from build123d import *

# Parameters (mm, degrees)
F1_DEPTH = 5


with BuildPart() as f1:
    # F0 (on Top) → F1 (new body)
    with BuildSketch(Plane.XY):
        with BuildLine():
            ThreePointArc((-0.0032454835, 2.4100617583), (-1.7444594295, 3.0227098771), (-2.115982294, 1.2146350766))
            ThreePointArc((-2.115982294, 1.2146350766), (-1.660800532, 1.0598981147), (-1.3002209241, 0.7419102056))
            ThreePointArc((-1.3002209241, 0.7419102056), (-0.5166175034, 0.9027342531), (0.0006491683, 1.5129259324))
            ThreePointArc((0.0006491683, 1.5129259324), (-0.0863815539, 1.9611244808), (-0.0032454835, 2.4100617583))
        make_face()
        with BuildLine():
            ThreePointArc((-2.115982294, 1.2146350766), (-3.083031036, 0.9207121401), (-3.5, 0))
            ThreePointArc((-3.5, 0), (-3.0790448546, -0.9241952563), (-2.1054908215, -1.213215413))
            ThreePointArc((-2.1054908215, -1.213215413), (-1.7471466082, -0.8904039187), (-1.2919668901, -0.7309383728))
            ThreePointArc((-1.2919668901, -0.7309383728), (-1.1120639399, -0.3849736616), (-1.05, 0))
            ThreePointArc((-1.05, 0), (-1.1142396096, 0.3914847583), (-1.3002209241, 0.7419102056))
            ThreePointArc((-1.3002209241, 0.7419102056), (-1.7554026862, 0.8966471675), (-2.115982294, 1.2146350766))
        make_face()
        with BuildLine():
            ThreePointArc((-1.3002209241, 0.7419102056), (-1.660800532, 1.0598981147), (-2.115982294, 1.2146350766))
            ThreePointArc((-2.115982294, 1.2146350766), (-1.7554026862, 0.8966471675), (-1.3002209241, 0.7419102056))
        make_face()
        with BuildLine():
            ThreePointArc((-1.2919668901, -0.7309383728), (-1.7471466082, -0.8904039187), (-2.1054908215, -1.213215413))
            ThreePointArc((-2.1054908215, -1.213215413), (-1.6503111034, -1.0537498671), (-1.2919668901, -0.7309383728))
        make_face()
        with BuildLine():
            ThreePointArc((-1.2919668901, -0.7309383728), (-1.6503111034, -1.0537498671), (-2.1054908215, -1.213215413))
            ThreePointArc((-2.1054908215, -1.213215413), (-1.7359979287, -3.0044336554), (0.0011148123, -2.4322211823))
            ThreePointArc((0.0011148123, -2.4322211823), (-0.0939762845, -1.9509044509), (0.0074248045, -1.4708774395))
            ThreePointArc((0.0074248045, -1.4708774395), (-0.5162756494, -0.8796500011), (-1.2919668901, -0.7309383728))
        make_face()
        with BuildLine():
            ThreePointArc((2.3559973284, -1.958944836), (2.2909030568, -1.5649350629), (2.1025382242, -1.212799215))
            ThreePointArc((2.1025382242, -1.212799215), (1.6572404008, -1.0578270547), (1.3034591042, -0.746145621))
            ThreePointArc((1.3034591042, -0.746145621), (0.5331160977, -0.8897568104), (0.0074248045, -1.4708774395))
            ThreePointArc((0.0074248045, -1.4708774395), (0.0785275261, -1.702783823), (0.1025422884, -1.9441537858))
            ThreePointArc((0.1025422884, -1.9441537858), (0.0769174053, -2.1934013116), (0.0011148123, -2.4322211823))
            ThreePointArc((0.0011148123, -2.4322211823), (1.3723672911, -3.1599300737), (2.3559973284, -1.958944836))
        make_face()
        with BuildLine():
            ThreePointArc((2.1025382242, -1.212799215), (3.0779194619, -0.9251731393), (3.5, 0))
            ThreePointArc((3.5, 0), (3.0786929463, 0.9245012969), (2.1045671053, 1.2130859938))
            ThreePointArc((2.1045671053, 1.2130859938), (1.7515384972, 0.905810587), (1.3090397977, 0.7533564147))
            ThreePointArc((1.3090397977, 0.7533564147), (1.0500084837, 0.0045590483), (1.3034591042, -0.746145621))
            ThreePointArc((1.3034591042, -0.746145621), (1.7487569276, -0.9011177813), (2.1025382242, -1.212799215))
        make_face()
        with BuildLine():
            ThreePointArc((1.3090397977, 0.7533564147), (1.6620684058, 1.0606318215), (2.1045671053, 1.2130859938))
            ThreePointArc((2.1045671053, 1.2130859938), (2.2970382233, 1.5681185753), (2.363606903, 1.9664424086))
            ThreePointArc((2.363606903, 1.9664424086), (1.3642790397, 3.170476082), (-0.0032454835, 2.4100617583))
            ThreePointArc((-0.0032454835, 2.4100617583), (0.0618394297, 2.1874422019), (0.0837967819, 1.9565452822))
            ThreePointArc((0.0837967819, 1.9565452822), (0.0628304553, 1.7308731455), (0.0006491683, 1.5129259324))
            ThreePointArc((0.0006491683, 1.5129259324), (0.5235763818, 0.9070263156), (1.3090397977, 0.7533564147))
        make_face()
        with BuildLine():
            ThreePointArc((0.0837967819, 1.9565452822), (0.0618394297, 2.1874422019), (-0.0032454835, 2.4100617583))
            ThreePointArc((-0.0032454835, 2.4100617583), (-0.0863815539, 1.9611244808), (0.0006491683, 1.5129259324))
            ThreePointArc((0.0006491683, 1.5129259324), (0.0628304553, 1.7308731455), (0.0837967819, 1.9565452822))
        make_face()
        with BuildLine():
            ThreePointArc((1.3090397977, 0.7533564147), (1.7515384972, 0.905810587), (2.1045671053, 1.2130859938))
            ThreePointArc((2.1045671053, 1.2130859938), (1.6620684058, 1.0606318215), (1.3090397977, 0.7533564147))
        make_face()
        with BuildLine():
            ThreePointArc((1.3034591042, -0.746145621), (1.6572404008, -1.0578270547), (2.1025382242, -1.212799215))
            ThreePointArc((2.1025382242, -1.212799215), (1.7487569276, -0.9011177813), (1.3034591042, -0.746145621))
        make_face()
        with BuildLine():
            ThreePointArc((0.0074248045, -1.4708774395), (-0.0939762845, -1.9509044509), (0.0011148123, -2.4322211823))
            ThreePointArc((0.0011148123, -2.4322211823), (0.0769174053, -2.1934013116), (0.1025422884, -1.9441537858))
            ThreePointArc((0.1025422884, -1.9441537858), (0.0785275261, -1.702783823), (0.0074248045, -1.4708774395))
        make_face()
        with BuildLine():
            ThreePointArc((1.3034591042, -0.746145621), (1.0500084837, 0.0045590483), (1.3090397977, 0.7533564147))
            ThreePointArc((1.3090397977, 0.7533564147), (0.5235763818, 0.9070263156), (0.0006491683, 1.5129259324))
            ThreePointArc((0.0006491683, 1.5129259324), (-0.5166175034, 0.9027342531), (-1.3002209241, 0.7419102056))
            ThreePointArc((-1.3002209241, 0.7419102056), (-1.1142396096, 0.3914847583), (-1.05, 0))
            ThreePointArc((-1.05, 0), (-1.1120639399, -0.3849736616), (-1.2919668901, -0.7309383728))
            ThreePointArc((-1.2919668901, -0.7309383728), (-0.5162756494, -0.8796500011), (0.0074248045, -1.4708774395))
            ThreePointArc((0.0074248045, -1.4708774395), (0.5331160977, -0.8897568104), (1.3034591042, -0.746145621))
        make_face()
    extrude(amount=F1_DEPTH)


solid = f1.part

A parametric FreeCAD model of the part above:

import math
import FreeCAD as App
import Part
import Sketcher
from FreeCAD import Vector
Q = App.Units.Quantity

doc = App.newDocument("Part")
params = doc.addObject("Spreadsheet::Sheet", "Params")
for row, (alias, value) in enumerate([
    ("pad1_length", "5 mm"),
], start=1):
    params.set(f"A{row}", alias)
    params.set(f"B{row}", "=" + value)
    params.setAlias(f"B{row}", alias)

body = doc.addObject("PartDesign::Body", "Body")

sketch1 = doc.addObject("Sketcher::SketchObject", "Sketch")
body.addObject(sketch1)
sketch1.AttachmentSupport = (doc.XY_Plane, [""])
sketch1.MapMode = "FlatFace"
sketch1.addGeometry(Part.ArcOfCircle(Part.Circle(Vector(-1.1, -1.9, 0), Vector(0, 0, 1), 1.2), math.radians(143), math.radians(337)), False)
sketch1.addGeometry(Part.ArcOfCircle(Part.Circle(Vector(1.1, -2, 0), Vector(0, 0, 1), 1.2), math.radians(-157), math.radians(0)), False)
sketch1.addGeometry(Part.ArcOfCircle(Part.Circle(Vector(1.1, -2, 0), Vector(0, 0, 1), 1.2), math.radians(0), math.radians(38)), False)
sketch1.addGeometry(Part.ArcOfCircle(Part.Circle(Vector(2.3, 0, 0), Vector(0, 0, 1), 1.2), math.radians(-98), math.radians(0)), False)
sketch1.addGeometry(Part.ArcOfCircle(Part.Circle(Vector(2.3, 0, 0), Vector(0, 0, 1), 1.2), math.radians(0), math.radians(98)), False)
sketch1.addGeometry(Part.ArcOfCircle(Part.Circle(Vector(1.1, 2, 0), Vector(0, 0, 1), 1.2), math.radians(-38), math.radians(0)), False)
sketch1.addGeometry(Part.ArcOfCircle(Part.Circle(Vector(1.1, 2, 0), Vector(0, 0, 1), 1.2), math.radians(0), math.radians(159)), False)
sketch1.addGeometry(Part.ArcOfCircle(Part.Circle(Vector(-1.1, 2, 0), Vector(0, 0, 1), 1.2), math.radians(22), math.radians(217)), False)
sketch1.addGeometry(Part.ArcOfCircle(Part.Circle(Vector(-2.3, 0, 0), Vector(0, 0, 1), 1.2), math.radians(83), math.radians(180)), False)
sketch1.addGeometry(Part.ArcOfCircle(Part.Circle(Vector(-2.3, 0, 0), Vector(0, 0, 1), 1.2), math.radians(180), math.radians(278)), False)
sketch1.addConstraint(Sketcher.Constraint("Coincident", 0, 2, 1, 1))
sketch1.addConstraint(Sketcher.Constraint("Tangent", 1, 2, 2, 1))
sketch1.addConstraint(Sketcher.Constraint("Coincident", 2, 2, 3, 1))
sketch1.addConstraint(Sketcher.Constraint("Tangent", 3, 2, 4, 1))
sketch1.addConstraint(Sketcher.Constraint("Coincident", 4, 2, 5, 1))
sketch1.addConstraint(Sketcher.Constraint("Tangent", 5, 2, 6, 1))
sketch1.addConstraint(Sketcher.Constraint("Coincident", 6, 2, 7, 1))
sketch1.addConstraint(Sketcher.Constraint("Coincident", 7, 2, 8, 1))
sketch1.addConstraint(Sketcher.Constraint("Tangent", 8, 2, 9, 1))
sketch1.addConstraint(Sketcher.Constraint("Coincident", 9, 2, 0, 1))
sketch1.addConstraint(Sketcher.Constraint("Equal", 0, 1))
sketch1.addConstraint(Sketcher.Constraint("Equal", 1, 2))
sketch1.addConstraint(Sketcher.Constraint("Equal", 2, 3))
sketch1.addConstraint(Sketcher.Constraint("Equal", 3, 4))
sketch1.addConstraint(Sketcher.Constraint("Equal", 4, 5))
sketch1.addConstraint(Sketcher.Constraint("Equal", 5, 6))
sketch1.addConstraint(Sketcher.Constraint("Equal", 6, 7))
sketch1.addConstraint(Sketcher.Constraint("Equal", 7, 8))
sketch1.addConstraint(Sketcher.Constraint("Equal", 8, 9))
sketch1.addConstraint(Sketcher.Constraint("Symmetric", 3, 3, 8, 3, -1, 1))
sketch1.addConstraint(Sketcher.Constraint("PointOnObject", 3, 3, -1))
sketch1.addConstraint(Sketcher.Constraint("PointOnObject", 3, 2, -1))
sketch1.addConstraint(Sketcher.Constraint("PointOnObject", 8, 2, -1))
sketch1.addConstraint(Sketcher.Constraint("Horizontal", 2, 3, 1, 2))
sketch1.addConstraint(Sketcher.Constraint("Horizontal", 6, 3, 5, 2))
sketch1.addConstraint(Sketcher.Constraint("Radius", 0, Q("1.225 mm")))
sketch1.addConstraint(Sketcher.Constraint("DistanceX", -1, 1, 3, 2, Q("3.5 mm")))
sketch1.addConstraint(Sketcher.Constraint("DistanceY", 2, 2, -1, 1, Q("1.212799 mm")))
sketch1.addConstraint(Sketcher.Constraint("DistanceY", 0, 3, 7, 3, Q("3.900699 mm")))
sketch1.addConstraint(Sketcher.Constraint("DistanceY", 0, 2, -1, 1, Q("2.432221 mm")))
sketch1.addConstraint(Sketcher.Constraint("DistanceY", -1, 1, 6, 2, Q("2.410062 mm")))
sketch1.addConstraint(Sketcher.Constraint("DistanceX", 9, 2, -1, 1, Q("2.105491 mm")))
sketch1.addConstraint(Sketcher.Constraint("DistanceY", 1, 3, 0, 3, Q("0.014791 mm")))
sketch1.addConstraint(Sketcher.Constraint("DistanceX", 2, 3, 5, 3, Q("0.00761 mm")))
sketch1.addConstraint(Sketcher.Constraint("DistanceX", 7, 3, 5, 3, Q("2.27981 mm")))
pad1 = doc.addObject("PartDesign::Pad", "Pad")
body.addObject(pad1)
pad1.Profile = sketch1
pad1.setExpression("Length", "Params.pad1_length")

doc.recompute()
